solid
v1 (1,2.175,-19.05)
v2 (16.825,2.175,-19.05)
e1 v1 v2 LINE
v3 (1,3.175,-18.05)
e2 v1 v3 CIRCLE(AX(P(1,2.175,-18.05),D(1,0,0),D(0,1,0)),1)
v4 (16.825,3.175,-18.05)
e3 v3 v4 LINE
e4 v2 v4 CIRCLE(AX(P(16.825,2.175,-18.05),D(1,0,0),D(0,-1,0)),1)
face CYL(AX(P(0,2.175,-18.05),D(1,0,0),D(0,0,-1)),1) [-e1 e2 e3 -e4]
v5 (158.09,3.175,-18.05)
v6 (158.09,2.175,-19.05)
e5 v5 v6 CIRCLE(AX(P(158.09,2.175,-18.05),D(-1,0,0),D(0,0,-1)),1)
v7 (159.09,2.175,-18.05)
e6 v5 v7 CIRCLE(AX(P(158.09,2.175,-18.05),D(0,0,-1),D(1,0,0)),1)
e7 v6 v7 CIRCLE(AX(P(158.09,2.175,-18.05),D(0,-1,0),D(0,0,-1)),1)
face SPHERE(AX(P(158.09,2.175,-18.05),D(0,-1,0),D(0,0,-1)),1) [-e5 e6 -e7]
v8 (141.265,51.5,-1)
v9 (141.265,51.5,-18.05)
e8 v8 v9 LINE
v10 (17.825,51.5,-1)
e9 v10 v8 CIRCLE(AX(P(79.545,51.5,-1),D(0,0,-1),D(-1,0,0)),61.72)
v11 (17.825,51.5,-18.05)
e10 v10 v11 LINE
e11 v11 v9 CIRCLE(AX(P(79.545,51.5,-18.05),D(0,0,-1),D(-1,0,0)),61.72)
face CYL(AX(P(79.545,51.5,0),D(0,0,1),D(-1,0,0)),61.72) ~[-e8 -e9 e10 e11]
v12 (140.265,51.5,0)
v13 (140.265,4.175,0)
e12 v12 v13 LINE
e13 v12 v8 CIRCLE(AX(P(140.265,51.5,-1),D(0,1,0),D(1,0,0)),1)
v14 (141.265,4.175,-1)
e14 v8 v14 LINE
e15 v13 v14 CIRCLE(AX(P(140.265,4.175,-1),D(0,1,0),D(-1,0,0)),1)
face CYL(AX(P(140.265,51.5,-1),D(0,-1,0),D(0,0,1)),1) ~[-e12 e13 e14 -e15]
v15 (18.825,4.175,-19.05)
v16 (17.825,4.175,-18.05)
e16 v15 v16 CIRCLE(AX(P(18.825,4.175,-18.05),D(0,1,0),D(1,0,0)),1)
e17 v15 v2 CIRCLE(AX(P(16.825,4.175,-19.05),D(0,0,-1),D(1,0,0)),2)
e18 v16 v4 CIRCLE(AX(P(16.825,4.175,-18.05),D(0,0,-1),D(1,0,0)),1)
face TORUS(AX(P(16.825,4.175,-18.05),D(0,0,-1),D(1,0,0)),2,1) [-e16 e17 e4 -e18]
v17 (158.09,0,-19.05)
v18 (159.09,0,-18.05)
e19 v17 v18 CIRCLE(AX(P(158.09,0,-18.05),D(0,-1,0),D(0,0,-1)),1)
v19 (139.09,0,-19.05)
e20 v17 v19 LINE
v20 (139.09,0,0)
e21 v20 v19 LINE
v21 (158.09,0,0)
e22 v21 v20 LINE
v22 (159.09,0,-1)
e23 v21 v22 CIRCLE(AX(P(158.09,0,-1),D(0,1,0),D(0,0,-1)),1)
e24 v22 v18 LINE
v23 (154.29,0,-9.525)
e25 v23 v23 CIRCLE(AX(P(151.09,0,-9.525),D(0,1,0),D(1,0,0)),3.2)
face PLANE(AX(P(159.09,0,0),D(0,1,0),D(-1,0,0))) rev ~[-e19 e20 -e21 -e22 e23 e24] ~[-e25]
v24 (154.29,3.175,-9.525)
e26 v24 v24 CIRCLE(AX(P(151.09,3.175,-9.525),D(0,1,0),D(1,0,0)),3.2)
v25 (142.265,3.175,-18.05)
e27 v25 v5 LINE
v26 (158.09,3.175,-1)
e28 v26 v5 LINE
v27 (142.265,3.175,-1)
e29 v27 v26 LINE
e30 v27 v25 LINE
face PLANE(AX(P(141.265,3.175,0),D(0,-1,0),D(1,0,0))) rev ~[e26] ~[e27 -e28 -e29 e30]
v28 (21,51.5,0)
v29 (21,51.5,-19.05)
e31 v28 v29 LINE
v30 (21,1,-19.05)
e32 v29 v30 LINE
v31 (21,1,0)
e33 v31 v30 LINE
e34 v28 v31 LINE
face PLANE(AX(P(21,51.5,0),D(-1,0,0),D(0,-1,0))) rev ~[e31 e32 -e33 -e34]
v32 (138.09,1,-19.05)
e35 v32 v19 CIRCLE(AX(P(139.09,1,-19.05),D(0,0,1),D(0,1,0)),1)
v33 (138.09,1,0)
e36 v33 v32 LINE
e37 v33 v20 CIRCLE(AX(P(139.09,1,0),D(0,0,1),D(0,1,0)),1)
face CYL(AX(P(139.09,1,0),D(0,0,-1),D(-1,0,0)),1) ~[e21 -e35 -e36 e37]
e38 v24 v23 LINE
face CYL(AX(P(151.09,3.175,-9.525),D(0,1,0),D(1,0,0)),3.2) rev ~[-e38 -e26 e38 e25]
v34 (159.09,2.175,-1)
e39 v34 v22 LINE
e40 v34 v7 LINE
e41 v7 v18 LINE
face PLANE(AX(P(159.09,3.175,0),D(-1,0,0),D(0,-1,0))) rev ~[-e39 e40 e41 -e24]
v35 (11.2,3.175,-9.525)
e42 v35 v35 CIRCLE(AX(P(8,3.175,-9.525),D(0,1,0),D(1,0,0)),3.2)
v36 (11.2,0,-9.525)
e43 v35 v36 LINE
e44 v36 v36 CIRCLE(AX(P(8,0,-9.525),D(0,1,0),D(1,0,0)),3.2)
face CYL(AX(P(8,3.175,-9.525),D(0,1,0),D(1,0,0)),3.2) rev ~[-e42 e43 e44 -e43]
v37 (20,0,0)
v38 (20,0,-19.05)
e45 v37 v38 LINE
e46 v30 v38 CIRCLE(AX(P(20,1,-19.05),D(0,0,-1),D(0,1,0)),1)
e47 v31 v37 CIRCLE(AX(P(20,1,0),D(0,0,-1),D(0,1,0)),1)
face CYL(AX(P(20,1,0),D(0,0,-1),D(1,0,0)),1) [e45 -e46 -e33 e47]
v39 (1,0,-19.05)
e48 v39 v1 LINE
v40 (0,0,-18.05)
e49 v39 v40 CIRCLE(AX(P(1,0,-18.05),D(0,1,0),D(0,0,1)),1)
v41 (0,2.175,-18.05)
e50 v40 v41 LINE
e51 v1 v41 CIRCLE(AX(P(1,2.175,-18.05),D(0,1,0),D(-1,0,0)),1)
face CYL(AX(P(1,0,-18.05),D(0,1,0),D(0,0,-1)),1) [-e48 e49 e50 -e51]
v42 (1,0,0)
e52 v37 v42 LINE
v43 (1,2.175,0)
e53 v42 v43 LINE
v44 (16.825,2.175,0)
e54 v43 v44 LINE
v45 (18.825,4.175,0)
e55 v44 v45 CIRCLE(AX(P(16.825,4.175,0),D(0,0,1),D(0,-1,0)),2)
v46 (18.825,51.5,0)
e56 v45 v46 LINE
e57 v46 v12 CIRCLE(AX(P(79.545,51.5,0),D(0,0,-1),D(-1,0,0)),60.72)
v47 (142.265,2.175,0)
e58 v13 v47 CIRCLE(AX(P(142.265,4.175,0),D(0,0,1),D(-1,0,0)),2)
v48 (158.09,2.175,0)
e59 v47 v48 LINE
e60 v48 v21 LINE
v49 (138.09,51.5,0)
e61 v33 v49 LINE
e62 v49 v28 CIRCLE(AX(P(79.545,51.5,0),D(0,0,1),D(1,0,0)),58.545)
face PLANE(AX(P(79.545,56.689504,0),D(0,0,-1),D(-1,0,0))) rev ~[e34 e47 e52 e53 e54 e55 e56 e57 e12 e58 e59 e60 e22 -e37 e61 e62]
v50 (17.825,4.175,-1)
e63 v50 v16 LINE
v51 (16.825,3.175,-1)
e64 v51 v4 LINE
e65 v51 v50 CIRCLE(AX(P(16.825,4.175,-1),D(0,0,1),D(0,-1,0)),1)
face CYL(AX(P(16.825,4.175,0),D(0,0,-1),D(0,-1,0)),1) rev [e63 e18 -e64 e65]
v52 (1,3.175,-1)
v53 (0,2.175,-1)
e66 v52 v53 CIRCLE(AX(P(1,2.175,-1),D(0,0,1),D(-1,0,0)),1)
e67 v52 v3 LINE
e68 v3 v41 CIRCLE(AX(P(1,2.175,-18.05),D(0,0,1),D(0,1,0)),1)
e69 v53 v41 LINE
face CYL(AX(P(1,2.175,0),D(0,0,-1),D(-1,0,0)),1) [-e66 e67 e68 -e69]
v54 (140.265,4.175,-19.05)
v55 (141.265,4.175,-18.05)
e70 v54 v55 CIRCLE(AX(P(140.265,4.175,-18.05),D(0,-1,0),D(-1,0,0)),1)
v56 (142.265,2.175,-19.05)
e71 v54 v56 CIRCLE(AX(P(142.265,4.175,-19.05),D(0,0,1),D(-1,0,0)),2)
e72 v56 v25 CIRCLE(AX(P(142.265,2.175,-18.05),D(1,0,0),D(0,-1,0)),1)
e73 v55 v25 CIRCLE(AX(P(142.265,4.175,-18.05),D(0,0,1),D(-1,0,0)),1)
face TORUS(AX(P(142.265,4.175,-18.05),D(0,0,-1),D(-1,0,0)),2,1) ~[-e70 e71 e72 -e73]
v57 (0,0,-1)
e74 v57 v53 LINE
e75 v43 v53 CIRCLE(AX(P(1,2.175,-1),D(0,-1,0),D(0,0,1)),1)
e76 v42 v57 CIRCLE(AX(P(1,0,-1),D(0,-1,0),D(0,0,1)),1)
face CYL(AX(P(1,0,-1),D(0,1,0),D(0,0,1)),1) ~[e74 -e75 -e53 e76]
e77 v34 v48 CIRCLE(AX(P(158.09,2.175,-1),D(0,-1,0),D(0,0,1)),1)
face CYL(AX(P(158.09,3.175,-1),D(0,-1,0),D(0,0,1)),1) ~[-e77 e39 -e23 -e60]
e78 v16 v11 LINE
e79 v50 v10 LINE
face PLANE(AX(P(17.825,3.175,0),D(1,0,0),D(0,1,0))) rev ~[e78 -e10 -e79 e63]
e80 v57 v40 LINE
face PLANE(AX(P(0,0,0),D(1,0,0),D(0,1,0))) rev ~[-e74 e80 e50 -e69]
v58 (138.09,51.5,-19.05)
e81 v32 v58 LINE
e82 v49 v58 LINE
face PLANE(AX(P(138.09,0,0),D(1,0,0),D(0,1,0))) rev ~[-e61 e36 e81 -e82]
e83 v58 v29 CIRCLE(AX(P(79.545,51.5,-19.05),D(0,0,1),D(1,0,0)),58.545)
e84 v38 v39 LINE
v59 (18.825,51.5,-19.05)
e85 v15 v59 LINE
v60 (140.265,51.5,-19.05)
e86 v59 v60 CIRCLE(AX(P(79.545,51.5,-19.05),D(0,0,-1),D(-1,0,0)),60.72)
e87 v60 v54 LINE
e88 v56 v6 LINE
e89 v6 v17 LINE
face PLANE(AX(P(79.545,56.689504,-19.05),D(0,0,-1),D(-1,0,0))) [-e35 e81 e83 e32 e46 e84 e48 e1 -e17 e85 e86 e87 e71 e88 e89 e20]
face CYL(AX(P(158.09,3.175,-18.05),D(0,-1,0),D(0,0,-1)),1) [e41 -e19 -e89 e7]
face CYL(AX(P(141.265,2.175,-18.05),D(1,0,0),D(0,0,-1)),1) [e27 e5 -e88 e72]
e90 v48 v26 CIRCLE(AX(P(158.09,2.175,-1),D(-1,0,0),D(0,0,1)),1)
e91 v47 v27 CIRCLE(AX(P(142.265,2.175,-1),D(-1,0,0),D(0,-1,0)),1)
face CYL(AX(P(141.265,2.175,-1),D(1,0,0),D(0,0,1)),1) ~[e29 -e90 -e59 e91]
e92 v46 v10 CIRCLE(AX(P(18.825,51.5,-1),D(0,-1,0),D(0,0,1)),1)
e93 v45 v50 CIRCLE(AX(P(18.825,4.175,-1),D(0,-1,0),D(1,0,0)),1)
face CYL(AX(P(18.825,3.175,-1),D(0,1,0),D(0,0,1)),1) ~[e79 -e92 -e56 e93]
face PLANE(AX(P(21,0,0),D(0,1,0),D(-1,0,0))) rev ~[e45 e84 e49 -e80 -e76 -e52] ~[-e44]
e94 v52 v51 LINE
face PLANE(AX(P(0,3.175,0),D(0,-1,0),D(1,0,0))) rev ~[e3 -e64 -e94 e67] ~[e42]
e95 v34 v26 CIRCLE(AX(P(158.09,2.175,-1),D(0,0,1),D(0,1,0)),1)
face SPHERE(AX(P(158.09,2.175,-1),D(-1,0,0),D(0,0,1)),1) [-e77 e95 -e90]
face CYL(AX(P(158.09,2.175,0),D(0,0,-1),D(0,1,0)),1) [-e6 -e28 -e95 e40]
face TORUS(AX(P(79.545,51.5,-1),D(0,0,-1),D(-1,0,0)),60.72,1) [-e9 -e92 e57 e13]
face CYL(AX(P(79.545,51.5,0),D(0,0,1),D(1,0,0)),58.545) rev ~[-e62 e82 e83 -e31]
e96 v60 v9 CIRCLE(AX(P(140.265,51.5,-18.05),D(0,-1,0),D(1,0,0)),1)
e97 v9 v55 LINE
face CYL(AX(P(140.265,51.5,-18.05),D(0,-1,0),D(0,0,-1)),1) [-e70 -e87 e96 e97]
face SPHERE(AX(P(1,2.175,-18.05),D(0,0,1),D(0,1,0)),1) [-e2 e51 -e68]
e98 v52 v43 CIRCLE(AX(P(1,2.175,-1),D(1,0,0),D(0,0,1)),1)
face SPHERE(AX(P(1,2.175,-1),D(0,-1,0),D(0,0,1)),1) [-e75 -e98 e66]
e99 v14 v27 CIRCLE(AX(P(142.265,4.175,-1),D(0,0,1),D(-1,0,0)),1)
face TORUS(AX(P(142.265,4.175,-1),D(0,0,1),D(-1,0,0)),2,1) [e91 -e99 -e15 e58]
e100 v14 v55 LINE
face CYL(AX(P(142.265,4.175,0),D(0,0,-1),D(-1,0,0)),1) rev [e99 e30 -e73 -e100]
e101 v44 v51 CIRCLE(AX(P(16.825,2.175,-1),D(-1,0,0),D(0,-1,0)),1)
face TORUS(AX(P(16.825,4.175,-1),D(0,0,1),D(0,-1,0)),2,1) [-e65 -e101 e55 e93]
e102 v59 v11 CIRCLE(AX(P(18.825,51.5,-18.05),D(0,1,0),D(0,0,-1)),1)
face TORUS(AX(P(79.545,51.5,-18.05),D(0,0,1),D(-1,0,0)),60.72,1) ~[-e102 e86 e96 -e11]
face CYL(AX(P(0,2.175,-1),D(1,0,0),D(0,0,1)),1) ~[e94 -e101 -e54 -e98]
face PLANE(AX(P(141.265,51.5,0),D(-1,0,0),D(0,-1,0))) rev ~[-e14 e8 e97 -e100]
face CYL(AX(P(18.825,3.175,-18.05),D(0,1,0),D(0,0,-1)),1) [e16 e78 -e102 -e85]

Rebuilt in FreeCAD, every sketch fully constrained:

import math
import FreeCAD as App
import Part
import Sketcher
from FreeCAD import Vector
Q = App.Units.Quantity


def edges_at(feature, points):
    """Names of the edges that pass closest to the given points."""
    edges = feature.Shape.Edges
    near = lambda p: min(range(len(edges)), key=lambda i: edges[i].distToShape(Part.Vertex(*p))[0])
    return sorted({f"Edge{near(p) + 1}" for p in points})

doc = App.newDocument("Part")
body = doc.addObject("PartDesign::Body", "Body")

# Sketch on XY plane
sketch1 = doc.addObject("Sketcher::SketchObject", "Sketch")
body.addObject(sketch1)
sketch1.AttachmentSupport = (doc.XY_Plane, [""])
sketch1.MapMode = "FlatFace"
sketch1.addGeometry([
    Part.LineSegment(Vector(21, 0, 0), Vector(21, 51.5, 0)),  # 0
    Part.ArcOfCircle(Part.Circle(Vector(79.545, 51.5, 0), Vector(0, 0, 1), 58.545), math.radians(0), math.radians(180)),  # 1
    Part.LineSegment(Vector(138.09, 51.5, 0), Vector(138.09, 0, 0)),  # 2
    Part.LineSegment(Vector(138.09, 0, 0), Vector(159.09, 0, 0)),  # 3
    Part.LineSegment(Vector(159.09, 0, 0), Vector(159.09, 3.175, 0)),  # 4
    Part.LineSegment(Vector(159.09, 3.175, 0), Vector(141.265, 3.175, 0)),  # 5
    Part.LineSegment(Vector(141.265, 3.175, 0), Vector(141.265, 51.5, 0)),  # 6
    Part.ArcOfCircle(Part.Circle(Vector(79.545, 51.5, 0), Vector(0, 0, 1), 61.72), math.radians(0), math.radians(180)),  # 7
    Part.LineSegment(Vector(17.825, 51.5, 0), Vector(17.825, 3.175, 0)),  # 8
    Part.LineSegment(Vector(17.825, 3.175, 0), Vector(0, 3.175, 0)),  # 9
    Part.LineSegment(Vector(0, 3.175, 0), Vector(0, 0, 0)),  # 10
    Part.LineSegment(Vector(0, 0, 0), Vector(21, 0, 0)),  # 11
], False)
sketch1.addConstraint([
    Sketcher.Constraint("Tangent", 0, 2, 1, 2),
    Sketcher.Constraint("Tangent", 1, 1, 2, 1),
    Sketcher.Constraint("Coincident", 2, 2, 3, 1),
    Sketcher.Constraint("Coincident", 3, 2, 4, 1),
    Sketcher.Constraint("Coincident", 4, 2, 5, 1),
    Sketcher.Constraint("Coincident", 5, 2, 6, 1),
    Sketcher.Constraint("Tangent", 6, 2, 7, 1),
    Sketcher.Constraint("Tangent", 7, 2, 8, 1),
    Sketcher.Constraint("Coincident", 8, 2, 9, 1),
    Sketcher.Constraint("Coincident", 9, 2, 10, 1),
    Sketcher.Constraint("Coincident", 10, 2, 11, 1),
    Sketcher.Constraint("Coincident", 11, 2, 0, 1),
    Sketcher.Constraint("Vertical", 0),
    Sketcher.Constraint("Vertical", 2),
    Sketcher.Constraint("Horizontal", 3),
    Sketcher.Constraint("Vertical", 4),
    Sketcher.Constraint("Horizontal", 5),
    Sketcher.Constraint("Vertical", 6),
    Sketcher.Constraint("Vertical", 8),
    Sketcher.Constraint("Horizontal", 9),
    Sketcher.Constraint("Vertical", 10),
    Sketcher.Constraint("Horizontal", 11),
    Sketcher.Constraint("Coincident", 10, 2, -1, 1),
    Sketcher.Constraint("Coincident", 7, 3, 1, 3),
    Sketcher.Constraint("PointOnObject", 2, 2, -1),
    Sketcher.Constraint("Horizontal", 5, 2, 8, 2),
    Sketcher.Constraint("Equal", 5, 9),
    Sketcher.Constraint("DistanceX", 3, 1, 3, 2, Q("21 mm")),
    Sketcher.Constraint("Radius", 7, Q("61.72 mm")),
    Sketcher.Constraint("DistanceY", 0, 1, 0, 2, Q("51.5 mm")),
    Sketcher.Constraint("Radius", 1, Q("58.545 mm")),
    Sketcher.Constraint("DistanceY", 4, 1, 4, 2, Q("3.175 mm")),
])
pad1 = doc.addObject("PartDesign::Pad", "Pad")
body.addObject(pad1)
pad1.Profile = sketch1
pad1.Length = 19.05
pad1.Reversed = True

# Sketch on XZ plane
sketch2 = doc.addObject("Sketcher::SketchObject", "Sketch001")
body.addObject(sketch2)
sketch2.AttachmentSupport = (doc.XZ_Plane, [""])
sketch2.MapMode = "FlatFace"
sketch2.AttachmentOffset = App.Placement(Vector(0, 0, -3.175), App.Rotation())
sketch2.addGeometry(Part.Circle(Vector(151.09, -9.525, 0), Vector(0, 0, 1), 3.2), False)
sketch2.addConstraint([
    Sketcher.Constraint("Diameter", 0, Q("6.4 mm")),
    Sketcher.Constraint("DistanceX", -1, 1, 0, 3, Q("151.09 mm")),
    Sketcher.Constraint("DistanceY", 0, 3, -1, 1, Q("9.525 mm")),
])
pocket1 = doc.addObject("PartDesign::Pocket", "Pocket")
body.addObject(pocket1)
pocket1.Profile = sketch2
pocket1.Type = "UpToFirst"
pocket1.Reversed = True

# Sketch on XZ plane
sketch3 = doc.addObject("Sketcher::SketchObject", "Sketch002")
body.addObject(sketch3)
sketch3.AttachmentSupport = (doc.XZ_Plane, [""])
sketch3.MapMode = "FlatFace"
sketch3.AttachmentOffset = App.Placement(Vector(0, 0, -3.175), App.Rotation())
sketch3.addGeometry(Part.Circle(Vector(8, -9.525, 0), Vector(0, 0, 1), 3.2), False)
sketch3.addConstraint([
    Sketcher.Constraint("Diameter", 0, Q("6.4 mm")),
    Sketcher.Constraint("DistanceX", -1, 1, 0, 3, Q("8 mm")),
    Sketcher.Constraint("DistanceY", 0, 3, -1, 1, Q("9.525 mm")),
])
pocket2 = doc.addObject("PartDesign::Pocket", "Pocket001")
body.addObject(pocket2)
pocket2.Profile = sketch3
pocket2.Type = "UpToFirst"
pocket2.Reversed = True
doc.recompute()

fillet = doc.addObject("PartDesign::Fillet", "Fillet")
body.addObject(fillet)
fillet.Base = (pocket2, edges_at(pocket2, [
    (0, 1.587, 0),
    (8.912, 3.175, 0),
    (17.825, 27.337, 0),
    (79.545, 113.22, 0),
    (141.265, 27.337, 0),
    (150.178, 3.175, 0),
    (159.09, 1.587, 0),
    (159.09, 1.587, -19.05),
    (21, 0, -9.525),
    (150.178, 3.175, -19.05),
    (0, 3.175, -9.525),
    (17.825, 3.175, -9.525),
    (141.265, 3.175, -9.525),
    (159.09, 3.175, -9.525),
    (138.09, 0, -9.525),
    (141.265, 27.337, -19.05),
    (79.545, 113.22, -19.05),
    (17.825, 27.337, -19.05),
    (8.912, 3.175, -19.05),
    (0, 1.587, -19.05),
]))
fillet.Radius = 1

doc.recompute()
